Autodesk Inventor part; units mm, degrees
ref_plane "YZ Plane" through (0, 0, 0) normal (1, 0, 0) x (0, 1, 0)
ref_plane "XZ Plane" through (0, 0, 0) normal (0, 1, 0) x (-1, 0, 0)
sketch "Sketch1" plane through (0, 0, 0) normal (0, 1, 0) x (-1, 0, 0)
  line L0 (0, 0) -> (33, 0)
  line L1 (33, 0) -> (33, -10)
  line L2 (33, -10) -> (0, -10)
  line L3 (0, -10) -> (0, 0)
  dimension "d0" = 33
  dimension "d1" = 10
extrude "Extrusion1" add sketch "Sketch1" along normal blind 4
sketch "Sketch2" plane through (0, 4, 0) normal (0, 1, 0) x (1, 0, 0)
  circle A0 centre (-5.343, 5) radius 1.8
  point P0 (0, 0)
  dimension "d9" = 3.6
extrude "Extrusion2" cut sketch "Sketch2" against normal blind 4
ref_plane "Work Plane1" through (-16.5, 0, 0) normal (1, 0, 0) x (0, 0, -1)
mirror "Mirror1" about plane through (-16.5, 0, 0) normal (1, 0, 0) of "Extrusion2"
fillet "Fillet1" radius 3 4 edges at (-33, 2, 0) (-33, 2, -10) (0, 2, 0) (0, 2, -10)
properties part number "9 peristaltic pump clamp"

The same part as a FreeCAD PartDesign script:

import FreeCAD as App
import Part
import Sketcher
from FreeCAD import Vector
Q = App.Units.Quantity


def edges_at(feature, points):
    """Names of the edges that pass closest to the given points."""
    edges = feature.Shape.Edges
    near = lambda p: min(range(len(edges)), key=lambda i: edges[i].distToShape(Part.Vertex(*p))[0])
    return sorted({f"Edge{near(p) + 1}" for p in points})


def add_polygon(sketch, points):
    """Adds a closed chain of lines whose ends are joined by coincident constraints."""
    first, n = sketch.GeometryCount, len(points)
    for a, b in zip(points, points[1:] + points[:1]):
        sketch.addGeometry(Part.LineSegment(App.Vector(*a, 0), App.Vector(*b, 0)), False)
    for i in range(n):
        sketch.addConstraint(Sketcher.Constraint("Coincident", first + i, 2, first + (i + 1) % n, 1))

doc = App.newDocument("Part")
params = doc.addObject("Spreadsheet::Sheet", "Params")
for row, (alias, value) in enumerate([
    ("sketch1_width", "33 mm"),
    ("sketch1_height", "10 mm"),
    ("pad1_length", "4 mm"),
    ("sketch2_diameter", "3.6 mm"),
    ("pocket1_length", "4 mm"),
    ("fillet_radius", "3 mm"),
], start=1):
    params.set(f"A{row}", alias)
    params.set(f"B{row}", "=" + value)
    params.setAlias(f"B{row}", alias)

body = doc.addObject("PartDesign::Body", "Body")

sketch1 = body.newObject("Sketcher::SketchObject", "Sketch")
sketch1.AttachmentSupport = (doc.getObject("XZ_Plane"), [""])
sketch1.MapMode = "FlatFace"
add_polygon(sketch1, [(-33, 0), (0, 0), (0, -10), (-33, -10)])
sketch1.addConstraint(Sketcher.Constraint("Horizontal", 0))
sketch1.addConstraint(Sketcher.Constraint("Vertical", 1))
sketch1.addConstraint(Sketcher.Constraint("Horizontal", 2))
sketch1.addConstraint(Sketcher.Constraint("Vertical", 3))
sketch1.addConstraint(Sketcher.Constraint("Coincident", 0, 2, -1, 1))
sketch1.addConstraint(Sketcher.Constraint("DistanceX", 0, 1, 0, 2, Q("33 mm")))
sketch1.addConstraint(Sketcher.Constraint("DistanceY", 1, 2, 1, 1, Q("10 mm")))
sketch1.setExpression("Constraints[9]", "Params.sketch1_width")
sketch1.setExpression("Constraints[10]", "Params.sketch1_height")
pad1 = body.newObject("PartDesign::Pad", "Pad")
pad1.Profile = sketch1
pad1.setExpression("Length", "Params.pad1_length")
pad1.Reversed = True

sketch2 = body.newObject("Sketcher::SketchObject", "Sketch001")
sketch2.AttachmentSupport = (doc.getObject("XZ_Plane"), [""])
sketch2.MapMode = "FlatFace"
sketch2.AttachmentOffset = App.Placement(Vector(0, 0, -4), App.Rotation())
sketch2.addGeometry(Part.Circle(Vector(-5.3, -5, 0), Vector(0, 0, 1), 1.8), False)
sketch2.addConstraint(Sketcher.Constraint("Diameter", 0, Q("3.6 mm")))
sketch2.addConstraint(Sketcher.Constraint("DistanceY", 0, 3, -1, 1, Q("5 mm")))
sketch2.addConstraint(Sketcher.Constraint("DistanceX", 0, 3, -1, 1, Q("5.343 mm")))
sketch2.setExpression("Constraints[0]", "Params.sketch2_diameter")
pocket1 = body.newObject("PartDesign::Pocket", "Pocket")
pocket1.Profile = sketch2
pocket1.setExpression("Length", "Params.pocket1_length")
pocket1.Reversed = True
doc.recompute()

datumplane = body.newObject("PartDesign::Plane", "DatumPlane")
datumplane.AttachmentSupport = (doc.getObject("YZ_Plane"), [""])
datumplane.MapMode = "FlatFace"
datumplane.AttachmentOffset = App.Placement(Vector(0, 0, -16.5), App.Rotation())
mirrored = body.newObject("PartDesign::Mirrored", "Mirrored")
mirrored.Originals = [pocket1]
mirrored.MirrorPlane = (datumplane, [""])
body.Tip = mirrored
doc.recompute()

fillet = body.newObject("PartDesign::Fillet", "Fillet")
fillet.Base = (mirrored, edges_at(mirrored, [
    (-33, 2, 0),
    (-33, 2, -10),
    (0, 2, 0),
    (0, 2, -10),
]))
fillet.setExpression("Radius", "Params.fillet_radius")

doc.recompute()
